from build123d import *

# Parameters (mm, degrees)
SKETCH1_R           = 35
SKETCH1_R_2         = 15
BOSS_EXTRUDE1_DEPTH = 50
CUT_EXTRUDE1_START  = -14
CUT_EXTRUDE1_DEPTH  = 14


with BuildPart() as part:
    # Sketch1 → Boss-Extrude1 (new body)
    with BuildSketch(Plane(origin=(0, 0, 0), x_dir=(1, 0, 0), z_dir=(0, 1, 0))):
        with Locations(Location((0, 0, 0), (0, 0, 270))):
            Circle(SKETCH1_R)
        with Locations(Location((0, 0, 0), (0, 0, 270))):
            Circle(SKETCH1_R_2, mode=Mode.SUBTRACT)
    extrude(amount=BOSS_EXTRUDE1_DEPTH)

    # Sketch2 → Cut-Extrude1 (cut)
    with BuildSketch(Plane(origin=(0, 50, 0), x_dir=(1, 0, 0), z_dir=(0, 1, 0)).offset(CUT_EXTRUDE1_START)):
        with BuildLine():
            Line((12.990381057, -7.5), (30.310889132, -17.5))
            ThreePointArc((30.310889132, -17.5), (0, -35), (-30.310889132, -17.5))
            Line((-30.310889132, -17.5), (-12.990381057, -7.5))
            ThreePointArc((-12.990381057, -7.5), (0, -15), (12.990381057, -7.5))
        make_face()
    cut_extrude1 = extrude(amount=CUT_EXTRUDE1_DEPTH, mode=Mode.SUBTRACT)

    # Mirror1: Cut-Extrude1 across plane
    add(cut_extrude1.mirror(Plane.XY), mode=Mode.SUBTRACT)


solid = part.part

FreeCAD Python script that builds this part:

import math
import FreeCAD as App
import Part
import Sketcher
Q = App.Units.Quantity

doc = App.newDocument("Part")
params = doc.addObject("Spreadsheet::Sheet", "Params")
for row, (alias, value) in enumerate([
    ("sketch1_diameter", "70 mm"),
    ("sketch1_diameter2", "30 mm"),
    ("pad1_length", "50 mm"),
    ("sketch2_radius", "15 mm"),
    ("sketch2_radius2", "35 mm"),
    ("pocket1_length", "14 mm"),
], start=1):
    params.set(f"A{row}", alias)
    params.set(f"B{row}", "=" + value)
    params.setAlias(f"B{row}", alias)

body = doc.addObject("PartDesign::Body", "Body")

# Sketch on XZ plane
sketch1 = body.newObject("Sketcher::SketchObject", "Sketch")
sketch1.AttachmentSupport = (doc.getObject("XZ_Plane"), [""])
sketch1.MapMode = "FlatFace"
sketch1.addGeometry(Part.Circle(App.Vector(0, 0, 0), App.Vector(0, 0, 1), 35), False)
sketch1.addGeometry(Part.Circle(App.Vector(0, 0, 0), App.Vector(0, 0, 1), 15), False)
sketch1.addConstraint(Sketcher.Constraint("Coincident", 0, 3, -1, 1))
sketch1.addConstraint(Sketcher.Constraint("Coincident", 1, 3, -1, 1))
sketch1.addConstraint(Sketcher.Constraint("Diameter", 0, Q("70 mm")))
sketch1.addConstraint(Sketcher.Constraint("Diameter", 1, Q("30 mm")))
sketch1.setExpression("Constraints[2]", "Params.sketch1_diameter")
sketch1.setExpression("Constraints[3]", "Params.sketch1_diameter2")
pad1 = body.newObject("PartDesign::Pad", "Pad")
pad1.Profile = sketch1
pad1.setExpression("Length", "Params.pad1_length")
pad1.Reversed = True

# Sketch on XZ plane
sketch2 = body.newObject("Sketcher::SketchObject", "Sketch001")
sketch2.AttachmentSupport = (doc.getObject("XZ_Plane"), [""])
sketch2.MapMode = "FlatFace"
sketch2.AttachmentOffset = App.Placement(App.Vector(0, 0, -36), App.Rotation())
sketch2.addGeometry(Part.LineSegment(App.Vector(30, 18, 0), App.Vector(13, 8, 0)), False)
sketch2.addGeometry(Part.ArcOfCircle(Part.Circle(App.Vector(0, 0, 0), App.Vector(0, 0, 1), 15), math.radians(30), math.radians(150)), False)
sketch2.addGeometry(Part.LineSegment(App.Vector(-13, 8, 0), App.Vector(-30, 18, 0)), False)
sketch2.addGeometry(Part.ArcOfCircle(Part.Circle(App.Vector(0, 0, 0), App.Vector(0, 0, 1), 35), math.radians(30), math.radians(150)), False)
sketch2.addConstraint(Sketcher.Constraint("Coincident", 0, 2, 1, 1))
sketch2.addConstraint(Sketcher.Constraint("Coincident", 1, 2, 2, 1))
sketch2.addConstraint(Sketcher.Constraint("Coincident", 2, 2, 3, 2))
sketch2.addConstraint(Sketcher.Constraint("Coincident", 3, 1, 0, 1))
sketch2.addConstraint(Sketcher.Constraint("Coincident", 1, 3, -1, 1))
sketch2.addConstraint(Sketcher.Constraint("Coincident", 3, 3, -1, 1))
sketch2.addConstraint(Sketcher.Constraint("Horizontal", 0, 2, 1, 2))
sketch2.addConstraint(Sketcher.Constraint("Horizontal", 2, 2, 3, 1))
sketch2.addConstraint(Sketcher.Constraint("Radius", 1, Q("15 mm")))
sketch2.addConstraint(Sketcher.Constraint("Radius", 3, Q("35 mm")))
sketch2.addConstraint(Sketcher.Constraint("Angle", 0, Q("-150 deg")))
sketch2.addConstraint(Sketcher.Constraint("DistanceY", -1, 1, 0, 2, Q("7.5 mm")))
sketch2.setExpression("Constraints[8]", "Params.sketch2_radius")
sketch2.setExpression("Constraints[9]", "Params.sketch2_radius2")
pocket1 = body.newObject("PartDesign::Pocket", "Pocket")
pocket1.Profile = sketch2
pocket1.setExpression("Length", "Params.pocket1_length")
doc.recompute()

mirrored = body.newObject("PartDesign::Mirrored", "Mirrored")
mirrored.Originals = [pocket1]
mirrored.MirrorPlane = (doc.getObject("XY_Plane"), [""])
body.Tip = mirrored

doc.recompute()
